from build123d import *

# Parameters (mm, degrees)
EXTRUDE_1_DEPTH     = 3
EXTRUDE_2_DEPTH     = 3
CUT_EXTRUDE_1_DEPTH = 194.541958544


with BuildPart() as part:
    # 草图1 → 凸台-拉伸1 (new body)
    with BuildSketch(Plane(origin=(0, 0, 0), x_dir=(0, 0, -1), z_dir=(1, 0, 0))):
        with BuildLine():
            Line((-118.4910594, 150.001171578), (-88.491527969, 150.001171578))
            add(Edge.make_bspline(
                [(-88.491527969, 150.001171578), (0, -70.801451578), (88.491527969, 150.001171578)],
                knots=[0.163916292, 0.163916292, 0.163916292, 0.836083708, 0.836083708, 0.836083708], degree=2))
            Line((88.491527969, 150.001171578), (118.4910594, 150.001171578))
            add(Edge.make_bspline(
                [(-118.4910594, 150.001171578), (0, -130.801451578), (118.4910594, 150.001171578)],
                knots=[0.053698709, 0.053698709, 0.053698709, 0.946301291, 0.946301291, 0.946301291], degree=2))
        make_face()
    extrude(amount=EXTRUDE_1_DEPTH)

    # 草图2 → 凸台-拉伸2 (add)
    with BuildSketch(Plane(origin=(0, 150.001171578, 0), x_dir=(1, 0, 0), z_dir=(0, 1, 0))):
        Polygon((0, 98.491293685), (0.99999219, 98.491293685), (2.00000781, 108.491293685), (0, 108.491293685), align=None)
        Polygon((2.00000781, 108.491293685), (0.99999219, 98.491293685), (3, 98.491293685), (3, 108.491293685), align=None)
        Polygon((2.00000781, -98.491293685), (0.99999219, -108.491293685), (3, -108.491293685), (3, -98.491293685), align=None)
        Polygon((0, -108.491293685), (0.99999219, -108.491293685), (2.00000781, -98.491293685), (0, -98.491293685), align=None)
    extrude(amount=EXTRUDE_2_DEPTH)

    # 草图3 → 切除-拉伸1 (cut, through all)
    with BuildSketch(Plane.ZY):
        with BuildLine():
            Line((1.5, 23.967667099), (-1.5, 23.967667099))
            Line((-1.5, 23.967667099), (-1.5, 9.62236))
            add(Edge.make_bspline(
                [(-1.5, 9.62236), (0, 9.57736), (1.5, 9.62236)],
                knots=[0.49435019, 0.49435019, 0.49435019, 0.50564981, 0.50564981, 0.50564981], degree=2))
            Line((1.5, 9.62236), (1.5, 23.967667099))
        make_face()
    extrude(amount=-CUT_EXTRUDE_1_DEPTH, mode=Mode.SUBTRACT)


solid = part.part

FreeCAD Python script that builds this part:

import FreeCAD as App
import Part
import Sketcher
Q = App.Units.Quantity

doc = App.newDocument("Part")
body = doc.addObject("PartDesign::Body", "Body")

# Sketch on YZ plane
sketch1 = doc.addObject("Sketcher::SketchObject", "Sketch")
body.addObject(sketch1)
sketch1.AttachmentSupport = (doc.YZ_Plane, [""])
sketch1.MapMode = "FlatFace"
sketch1.addGeometry(Part.LineSegment(App.Vector(150.001172, 88.491528, 0), App.Vector(150.001172, 118.491059, 0)), False)
sketch1.addGeometry(Part.BSplineCurve([App.Vector(150.001172, 118.491059, 0), App.Vector(-130.801452, 0, 0), App.Vector(150.001172, -118.491059, 0)], [3, 3], [0.053698709, 0.946301291], False, 2, [1, 1, 1], False), False)
sketch1.addGeometry(Part.LineSegment(App.Vector(150.001172, -118.491059, 0), App.Vector(150.001172, -88.491528, 0)), False)
sketch1.addGeometry(Part.BSplineCurve([App.Vector(150.001172, 88.491528, 0), App.Vector(-70.801452, 0, 0), App.Vector(150.001172, -88.491528, 0)], [3, 3], [0.163916292, 0.836083708], False, 2, [1, 1, 1], False), False)
sketch1.addConstraint(Sketcher.Constraint("Block", 1))
sketch1.addConstraint(Sketcher.Constraint("Block", 3))
sketch1.addConstraint(Sketcher.Constraint("Coincident", 0, 2, 1, 1))
sketch1.addConstraint(Sketcher.Constraint("Coincident", 1, 2, 2, 1))
sketch1.addConstraint(Sketcher.Constraint("Coincident", 2, 2, 3, 2))
sketch1.addConstraint(Sketcher.Constraint("Coincident", 3, 1, 0, 1))
pad1 = doc.addObject("PartDesign::Pad", "Pad")
body.addObject(pad1)
pad1.Profile = sketch1
pad1.Length = 3

# Sketch on XZ plane
sketch2 = doc.addObject("Sketcher::SketchObject", "Sketch001")
body.addObject(sketch2)
sketch2.AttachmentSupport = (doc.XZ_Plane, [""])
sketch2.MapMode = "FlatFace"
sketch2.AttachmentOffset = App.Placement(App.Vector(0, 0, -150.001172), App.Rotation())
sketch2.addGeometry(Part.LineSegment(App.Vector(0, -98.5, 0), App.Vector(3, -98.5, 0)), False)
sketch2.addGeometry(Part.LineSegment(App.Vector(3, -98.5, 0), App.Vector(3, -108.5, 0)), False)
sketch2.addGeometry(Part.LineSegment(App.Vector(3, -108.5, 0), App.Vector(0, -108.5, 0)), False)
sketch2.addGeometry(Part.LineSegment(App.Vector(0, -108.5, 0), App.Vector(0, -98.5, 0)), False)
sketch2.addGeometry(Part.LineSegment(App.Vector(3, 108.5, 0), App.Vector(3, 98.5, 0)), False)
sketch2.addGeometry(Part.LineSegment(App.Vector(3, 98.5, 0), App.Vector(0, 98.5, 0)), False)
sketch2.addGeometry(Part.LineSegment(App.Vector(0, 98.5, 0), App.Vector(0, 108.5, 0)), False)
sketch2.addGeometry(Part.LineSegment(App.Vector(0, 108.5, 0), App.Vector(3, 108.5, 0)), False)
sketch2.addConstraint(Sketcher.Constraint("Coincident", 0, 2, 1, 1))
sketch2.addConstraint(Sketcher.Constraint("Coincident", 1, 2, 2, 1))
sketch2.addConstraint(Sketcher.Constraint("Coincident", 2, 2, 3, 1))
sketch2.addConstraint(Sketcher.Constraint("Coincident", 3, 2, 0, 1))
sketch2.addConstraint(Sketcher.Constraint("Coincident", 4, 2, 5, 1))
sketch2.addConstraint(Sketcher.Constraint("Coincident", 5, 2, 6, 1))
sketch2.addConstraint(Sketcher.Constraint("Coincident", 6, 2, 7, 1))
sketch2.addConstraint(Sketcher.Constraint("Coincident", 7, 2, 4, 1))
sketch2.addConstraint(Sketcher.Constraint("Horizontal", 0))
sketch2.addConstraint(Sketcher.Constraint("Vertical", 1))
sketch2.addConstraint(Sketcher.Constraint("Horizontal", 2))
sketch2.addConstraint(Sketcher.Constraint("Vertical", 3))
sketch2.addConstraint(Sketcher.Constraint("Vertical", 4))
sketch2.addConstraint(Sketcher.Constraint("Horizontal", 5))
sketch2.addConstraint(Sketcher.Constraint("Vertical", 6))
sketch2.addConstraint(Sketcher.Constraint("Horizontal", 7))
sketch2.addConstraint(Sketcher.Constraint("Symmetric", 3, 2, 5, 2, -1, 1))
sketch2.addConstraint(Sketcher.Constraint("Symmetric", 2, 2, 6, 2, -1))
sketch2.addConstraint(Sketcher.Constraint("Vertical", 1, 2, 4, 2))
sketch2.addConstraint(Sketcher.Constraint("DistanceX", 0, 1, 0, 2, Q("3 mm")))
sketch2.addConstraint(Sketcher.Constraint("DistanceY", 1, 2, 1, 1, Q("10 mm")))
sketch2.addConstraint(Sketcher.Constraint("DistanceY", 0, 2, -1, 1, Q("98.491294 mm")))
pad2 = doc.addObject("PartDesign::Pad", "Pad001")
body.addObject(pad2)
pad2.Profile = sketch2
pad2.Length = 3
pad2.Reversed = True

# Sketch on YZ plane
sketch3 = doc.addObject("Sketcher::SketchObject", "Sketch002")
body.addObject(sketch3)
sketch3.AttachmentSupport = (doc.YZ_Plane, [""])
sketch3.MapMode = "FlatFace"
sketch3.addGeometry(Part.LineSegment(App.Vector(23.967667, 1.5, 0), App.Vector(23.967667, -1.5, 0)), False)
sketch3.addGeometry(Part.LineSegment(App.Vector(23.967667, -1.5, 0), App.Vector(9.62236, -1.5, 0)), False)
sketch3.addGeometry(Part.BSplineCurve([App.Vector(9.62236, -1.5, 0), App.Vector(9.57736, 0, 0), App.Vector(9.62236, 1.5, 0)], [3, 3], [0.49435019, 0.50564981], False, 2, [1, 1, 1], False), False)
sketch3.addGeometry(Part.LineSegment(App.Vector(9.62236, 1.5, 0), App.Vector(23.967667, 1.5, 0)), False)
sketch3.addConstraint(Sketcher.Constraint("Block", 2))
sketch3.addConstraint(Sketcher.Constraint("Coincident", 0, 2, 1, 1))
sketch3.addConstraint(Sketcher.Constraint("Coincident", 1, 2, 2, 1))
sketch3.addConstraint(Sketcher.Constraint("Coincident", 2, 2, 3, 1))
sketch3.addConstraint(Sketcher.Constraint("Coincident", 3, 2, 0, 1))
sketch3.addConstraint(Sketcher.Constraint("Vertical", 0))
sketch3.addConstraint(Sketcher.Constraint("Horizontal", 1))
sketch3.addConstraint(Sketcher.Constraint("Horizontal", 3))
sketch3.addConstraint(Sketcher.Constraint("DistanceX", 1, 2, 1, 1, Q("14.345307 mm")))
pocket1 = doc.addObject("PartDesign::Pocket", "Pocket")
body.addObject(pocket1)
pocket1.Profile = sketch3
pocket1.Type = "ThroughAll"
pocket1.Reversed = True

doc.recompute()
